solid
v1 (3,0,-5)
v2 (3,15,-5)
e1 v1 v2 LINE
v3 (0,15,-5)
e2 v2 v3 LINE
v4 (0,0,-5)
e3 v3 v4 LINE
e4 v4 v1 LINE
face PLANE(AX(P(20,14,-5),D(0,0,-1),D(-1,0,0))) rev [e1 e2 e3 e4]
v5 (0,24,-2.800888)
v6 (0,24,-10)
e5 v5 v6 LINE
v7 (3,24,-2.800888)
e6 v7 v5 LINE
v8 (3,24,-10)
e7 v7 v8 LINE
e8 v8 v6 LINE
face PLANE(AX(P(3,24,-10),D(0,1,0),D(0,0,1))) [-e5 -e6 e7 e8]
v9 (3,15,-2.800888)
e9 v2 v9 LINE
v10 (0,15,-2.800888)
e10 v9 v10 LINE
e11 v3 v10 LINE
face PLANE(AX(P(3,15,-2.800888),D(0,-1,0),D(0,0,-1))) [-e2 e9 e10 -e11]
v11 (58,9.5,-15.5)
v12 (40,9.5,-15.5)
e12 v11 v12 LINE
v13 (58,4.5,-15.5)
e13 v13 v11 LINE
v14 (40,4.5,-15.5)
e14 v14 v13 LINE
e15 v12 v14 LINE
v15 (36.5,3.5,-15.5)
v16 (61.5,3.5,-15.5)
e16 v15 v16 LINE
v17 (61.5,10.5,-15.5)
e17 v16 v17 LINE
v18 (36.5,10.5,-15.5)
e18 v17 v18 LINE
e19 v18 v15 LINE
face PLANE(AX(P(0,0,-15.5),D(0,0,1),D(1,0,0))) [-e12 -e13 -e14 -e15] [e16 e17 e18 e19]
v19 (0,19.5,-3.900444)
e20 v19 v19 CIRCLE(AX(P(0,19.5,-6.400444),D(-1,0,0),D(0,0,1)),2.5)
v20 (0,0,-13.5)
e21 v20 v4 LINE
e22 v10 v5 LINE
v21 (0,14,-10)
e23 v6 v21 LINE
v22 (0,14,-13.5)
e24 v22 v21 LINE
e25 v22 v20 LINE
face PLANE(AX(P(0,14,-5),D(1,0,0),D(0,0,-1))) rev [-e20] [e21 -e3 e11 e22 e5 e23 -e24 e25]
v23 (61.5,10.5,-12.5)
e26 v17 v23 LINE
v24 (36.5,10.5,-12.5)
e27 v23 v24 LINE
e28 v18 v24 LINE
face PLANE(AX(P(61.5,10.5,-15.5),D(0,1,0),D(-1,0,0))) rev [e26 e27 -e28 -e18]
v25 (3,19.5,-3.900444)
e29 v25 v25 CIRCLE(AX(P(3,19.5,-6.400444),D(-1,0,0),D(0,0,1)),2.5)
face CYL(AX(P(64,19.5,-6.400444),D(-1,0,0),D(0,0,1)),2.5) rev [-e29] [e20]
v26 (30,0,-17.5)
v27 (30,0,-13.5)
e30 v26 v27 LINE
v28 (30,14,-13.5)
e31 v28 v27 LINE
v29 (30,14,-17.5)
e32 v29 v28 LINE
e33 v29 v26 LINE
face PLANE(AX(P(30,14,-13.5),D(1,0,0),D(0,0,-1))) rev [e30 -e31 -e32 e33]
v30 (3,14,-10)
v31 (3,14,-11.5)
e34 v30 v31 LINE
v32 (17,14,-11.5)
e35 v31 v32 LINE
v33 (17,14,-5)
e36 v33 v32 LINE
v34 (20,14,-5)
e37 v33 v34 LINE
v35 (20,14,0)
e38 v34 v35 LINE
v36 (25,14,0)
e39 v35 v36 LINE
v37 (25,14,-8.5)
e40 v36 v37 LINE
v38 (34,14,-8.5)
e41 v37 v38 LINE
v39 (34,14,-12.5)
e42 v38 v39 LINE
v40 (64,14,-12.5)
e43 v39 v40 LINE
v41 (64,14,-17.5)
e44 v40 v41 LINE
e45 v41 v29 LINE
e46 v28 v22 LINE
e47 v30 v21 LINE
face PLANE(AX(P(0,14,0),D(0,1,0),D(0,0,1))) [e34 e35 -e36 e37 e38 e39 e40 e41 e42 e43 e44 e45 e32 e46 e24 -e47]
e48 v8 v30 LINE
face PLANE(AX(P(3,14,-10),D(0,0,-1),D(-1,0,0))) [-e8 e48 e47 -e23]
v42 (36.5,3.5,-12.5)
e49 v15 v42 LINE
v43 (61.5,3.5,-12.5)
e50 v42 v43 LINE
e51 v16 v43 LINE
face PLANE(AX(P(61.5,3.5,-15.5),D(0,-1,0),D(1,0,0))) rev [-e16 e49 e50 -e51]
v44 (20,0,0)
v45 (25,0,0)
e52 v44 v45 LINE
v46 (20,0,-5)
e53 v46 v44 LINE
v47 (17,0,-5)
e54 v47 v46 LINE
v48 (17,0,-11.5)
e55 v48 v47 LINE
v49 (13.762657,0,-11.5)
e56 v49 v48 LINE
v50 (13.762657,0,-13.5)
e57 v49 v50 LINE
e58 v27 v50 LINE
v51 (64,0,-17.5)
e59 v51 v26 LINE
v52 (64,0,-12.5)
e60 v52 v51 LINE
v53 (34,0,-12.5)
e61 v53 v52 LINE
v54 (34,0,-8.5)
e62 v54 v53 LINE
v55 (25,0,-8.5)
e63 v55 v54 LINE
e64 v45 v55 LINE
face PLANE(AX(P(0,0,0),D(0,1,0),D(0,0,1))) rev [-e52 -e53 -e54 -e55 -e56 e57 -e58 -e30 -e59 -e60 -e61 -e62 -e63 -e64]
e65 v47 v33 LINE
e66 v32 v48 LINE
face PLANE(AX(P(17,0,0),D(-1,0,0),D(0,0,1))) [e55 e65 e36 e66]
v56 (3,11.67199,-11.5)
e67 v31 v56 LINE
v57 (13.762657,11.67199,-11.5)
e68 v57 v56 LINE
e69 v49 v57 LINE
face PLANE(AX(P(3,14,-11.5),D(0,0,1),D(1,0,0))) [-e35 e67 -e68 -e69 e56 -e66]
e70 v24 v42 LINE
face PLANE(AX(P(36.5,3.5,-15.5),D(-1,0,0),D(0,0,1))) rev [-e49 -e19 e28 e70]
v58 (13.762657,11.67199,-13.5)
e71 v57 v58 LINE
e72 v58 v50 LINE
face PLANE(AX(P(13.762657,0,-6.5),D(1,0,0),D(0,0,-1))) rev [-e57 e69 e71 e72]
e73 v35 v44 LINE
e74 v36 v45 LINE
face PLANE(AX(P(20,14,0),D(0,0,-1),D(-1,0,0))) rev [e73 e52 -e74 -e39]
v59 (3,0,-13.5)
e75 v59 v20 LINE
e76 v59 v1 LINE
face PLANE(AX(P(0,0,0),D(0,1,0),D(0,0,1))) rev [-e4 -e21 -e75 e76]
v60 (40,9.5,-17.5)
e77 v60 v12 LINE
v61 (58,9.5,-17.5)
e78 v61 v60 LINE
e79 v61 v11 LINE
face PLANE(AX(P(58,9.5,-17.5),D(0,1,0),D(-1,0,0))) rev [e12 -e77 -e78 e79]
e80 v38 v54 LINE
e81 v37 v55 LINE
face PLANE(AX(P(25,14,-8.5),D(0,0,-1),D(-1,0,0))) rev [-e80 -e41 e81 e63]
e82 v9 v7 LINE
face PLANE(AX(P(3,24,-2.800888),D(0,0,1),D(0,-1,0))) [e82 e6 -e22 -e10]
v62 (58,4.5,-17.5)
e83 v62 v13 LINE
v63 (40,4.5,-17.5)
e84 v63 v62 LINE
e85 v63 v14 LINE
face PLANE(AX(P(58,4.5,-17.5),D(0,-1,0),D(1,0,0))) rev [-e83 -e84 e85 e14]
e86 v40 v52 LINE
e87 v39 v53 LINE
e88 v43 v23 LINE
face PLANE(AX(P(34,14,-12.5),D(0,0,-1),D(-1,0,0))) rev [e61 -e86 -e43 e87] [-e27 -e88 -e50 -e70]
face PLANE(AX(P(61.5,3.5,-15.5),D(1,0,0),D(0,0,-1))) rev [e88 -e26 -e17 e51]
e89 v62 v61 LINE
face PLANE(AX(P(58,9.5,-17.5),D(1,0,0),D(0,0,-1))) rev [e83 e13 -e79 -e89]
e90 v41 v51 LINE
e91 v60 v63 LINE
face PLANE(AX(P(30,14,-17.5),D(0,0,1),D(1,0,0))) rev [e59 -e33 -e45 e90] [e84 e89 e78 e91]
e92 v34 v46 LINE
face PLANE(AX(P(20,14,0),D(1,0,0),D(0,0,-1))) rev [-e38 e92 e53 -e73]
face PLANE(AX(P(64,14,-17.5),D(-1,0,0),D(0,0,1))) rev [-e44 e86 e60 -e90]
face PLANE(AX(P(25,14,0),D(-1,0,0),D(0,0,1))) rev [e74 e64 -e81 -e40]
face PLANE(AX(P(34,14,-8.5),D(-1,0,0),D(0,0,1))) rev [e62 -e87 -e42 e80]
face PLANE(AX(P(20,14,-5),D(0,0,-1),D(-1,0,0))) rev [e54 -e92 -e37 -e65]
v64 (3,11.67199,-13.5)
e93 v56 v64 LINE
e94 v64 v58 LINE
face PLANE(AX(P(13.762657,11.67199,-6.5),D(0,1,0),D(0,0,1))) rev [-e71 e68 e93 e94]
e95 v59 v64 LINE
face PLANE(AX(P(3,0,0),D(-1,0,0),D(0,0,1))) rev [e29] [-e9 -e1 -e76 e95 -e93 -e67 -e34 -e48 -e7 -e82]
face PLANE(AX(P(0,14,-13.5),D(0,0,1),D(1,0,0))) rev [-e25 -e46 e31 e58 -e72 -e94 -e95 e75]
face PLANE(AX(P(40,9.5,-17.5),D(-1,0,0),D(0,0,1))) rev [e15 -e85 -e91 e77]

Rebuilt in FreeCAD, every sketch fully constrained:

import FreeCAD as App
import Part
import Sketcher
from FreeCAD import Vector
Q = App.Units.Quantity

doc = App.newDocument("Part")
body = doc.addObject("PartDesign::Body", "Body")

# Sketch on XZ plane
sketch1 = body.newObject("Sketcher::SketchObject", "Sketch")
sketch1.AttachmentSupport = (doc.getObject("XZ_Plane"), [""])
sketch1.MapMode = "FlatFace"
sketch1.addGeometry(Part.LineSegment(Vector(25, 0, 0), Vector(25, -8.5, 0)), False)
sketch1.addGeometry(Part.LineSegment(Vector(25, -8.5, 0), Vector(34, -8.5, 0)), False)
sketch1.addGeometry(Part.LineSegment(Vector(34, -8.5, 0), Vector(34, -12.5, 0)), False)
sketch1.addGeometry(Part.LineSegment(Vector(34, -12.5, 0), Vector(64, -12.5, 0)), False)
sketch1.addGeometry(Part.LineSegment(Vector(64, -12.5, 0), Vector(64, -17.5, 0)), False)
sketch1.addGeometry(Part.LineSegment(Vector(64, -17.5, 0), Vector(30, -17.5, 0)), False)
sketch1.addGeometry(Part.LineSegment(Vector(30, -17.5, 0), Vector(30, -13.5, 0)), False)
sketch1.addGeometry(Part.LineSegment(Vector(30, -13.5, 0), Vector(0, -13.5, 0)), False)
sketch1.addGeometry(Part.LineSegment(Vector(0, -13.5, 0), Vector(0, -5, 0)), False)
sketch1.addGeometry(Part.LineSegment(Vector(0, -5, 0), Vector(20, -5, 0)), False)
sketch1.addGeometry(Part.LineSegment(Vector(20, -5, 0), Vector(20, 0, 0)), False)
sketch1.addGeometry(Part.LineSegment(Vector(20, 0, 0), Vector(25, 0, 0)), False)
sketch1.addConstraint(Sketcher.Constraint("Coincident", 0, 2, 1, 1))
sketch1.addConstraint(Sketcher.Constraint("Coincident", 1, 2, 2, 1))
sketch1.addConstraint(Sketcher.Constraint("Coincident", 2, 2, 3, 1))
sketch1.addConstraint(Sketcher.Constraint("Coincident", 3, 2, 4, 1))
sketch1.addConstraint(Sketcher.Constraint("Coincident", 4, 2, 5, 1))
sketch1.addConstraint(Sketcher.Constraint("Coincident", 5, 2, 6, 1))
sketch1.addConstraint(Sketcher.Constraint("Coincident", 6, 2, 7, 1))
sketch1.addConstraint(Sketcher.Constraint("Coincident", 7, 2, 8, 1))
sketch1.addConstraint(Sketcher.Constraint("Coincident", 8, 2, 9, 1))
sketch1.addConstraint(Sketcher.Constraint("Coincident", 9, 2, 10, 1))
sketch1.addConstraint(Sketcher.Constraint("Coincident", 10, 2, 11, 1))
sketch1.addConstraint(Sketcher.Constraint("Coincident", 11, 2, 0, 1))
sketch1.addConstraint(Sketcher.Constraint("Vertical", 0))
sketch1.addConstraint(Sketcher.Constraint("Horizontal", 1))
sketch1.addConstraint(Sketcher.Constraint("Vertical", 2))
sketch1.addConstraint(Sketcher.Constraint("Horizontal", 3))
sketch1.addConstraint(Sketcher.Constraint("Vertical", 4))
sketch1.addConstraint(Sketcher.Constraint("Horizontal", 5))
sketch1.addConstraint(Sketcher.Constraint("Vertical", 6))
sketch1.addConstraint(Sketcher.Constraint("Horizontal", 7))
sketch1.addConstraint(Sketcher.Constraint("Vertical", 8))
sketch1.addConstraint(Sketcher.Constraint("Horizontal", 9))
sketch1.addConstraint(Sketcher.Constraint("Vertical", 10))
sketch1.addConstraint(Sketcher.Constraint("Horizontal", 11))
sketch1.addConstraint(Sketcher.Constraint("PointOnObject", 7, 2, -2))
sketch1.addConstraint(Sketcher.Constraint("PointOnObject", 10, 2, -1))
sketch1.addConstraint(Sketcher.Constraint("Equal", 3, 7))
sketch1.addConstraint(Sketcher.Constraint("Equal", 11, 4))
sketch1.addConstraint(Sketcher.Constraint("Equal", 2, 6))
sketch1.addConstraint(Sketcher.Constraint("Equal", 0, 8))
sketch1.addConstraint(Sketcher.Constraint("DistanceX", 1, 1, 1, 2, Q("9 mm")))
sketch1.addConstraint(Sketcher.Constraint("DistanceX", 3, 1, 3, 2, Q("30 mm")))
sketch1.addConstraint(Sketcher.Constraint("DistanceX", 5, 2, 5, 1, Q("34 mm")))
sketch1.addConstraint(Sketcher.Constraint("DistanceX", 9, 1, 9, 2, Q("20 mm")))
sketch1.addConstraint(Sketcher.Constraint("DistanceY", 2, 2, 2, 1, Q("4 mm")))
sketch1.addConstraint(Sketcher.Constraint("DistanceY", 0, 2, 0, 1, Q("8.5 mm")))
pad1 = body.newObject("PartDesign::Pad", "Pad")
pad1.Profile = sketch1
pad1.Length = 14
pad1.Reversed = True

# Sketch on XY plane
sketch2 = body.newObject("Sketcher::SketchObject", "Sketch001")
sketch2.AttachmentSupport = (doc.getObject("XY_Plane"), [""])
sketch2.MapMode = "FlatFace"
sketch2.AttachmentOffset = App.Placement(Vector(0, 0, -12.5), App.Rotation())
sketch2.addGeometry(Part.LineSegment(Vector(36, 10, 0), Vector(36, 4, 0)), False)
sketch2.addGeometry(Part.LineSegment(Vector(36, 4, 0), Vector(62, 4, 0)), False)
sketch2.addGeometry(Part.LineSegment(Vector(62, 4, 0), Vector(62, 10, 0)), False)
sketch2.addGeometry(Part.LineSegment(Vector(62, 10, 0), Vector(36, 10, 0)), False)
sketch2.addConstraint(Sketcher.Constraint("Coincident", 0, 2, 1, 1))
sketch2.addConstraint(Sketcher.Constraint("Coincident", 1, 2, 2, 1))
sketch2.addConstraint(Sketcher.Constraint("Coincident", 2, 2, 3, 1))
sketch2.addConstraint(Sketcher.Constraint("Coincident", 3, 2, 0, 1))
sketch2.addConstraint(Sketcher.Constraint("Vertical", 0))
sketch2.addConstraint(Sketcher.Constraint("Horizontal", 1))
sketch2.addConstraint(Sketcher.Constraint("Vertical", 2))
sketch2.addConstraint(Sketcher.Constraint("Horizontal", 3))
sketch2.addConstraint(Sketcher.Constraint("DistanceX", 1, 1, 1, 2, Q("25 mm")))
sketch2.addConstraint(Sketcher.Constraint("DistanceY", 0, 2, 0, 1, Q("7 mm")))
sketch2.addConstraint(Sketcher.Constraint("DistanceX", -1, 1, 0, 2, Q("36.5 mm")))
sketch2.addConstraint(Sketcher.Constraint("DistanceY", -1, 1, 0, 2, Q("3.5 mm")))
pocket1 = body.newObject("PartDesign::Pocket", "Pocket")
pocket1.Profile = sketch2
pocket1.Length = 3

# Sketch on XY plane
sketch3 = body.newObject("Sketcher::SketchObject", "Sketch002")
sketch3.AttachmentSupport = (doc.getObject("XY_Plane"), [""])
sketch3.MapMode = "FlatFace"
sketch3.AttachmentOffset = App.Placement(Vector(0, 0, -15.5), App.Rotation())
sketch3.addGeometry(Part.LineSegment(Vector(40, 10, 0), Vector(40, 4, 0)), False)
sketch3.addGeometry(Part.LineSegment(Vector(40, 4, 0), Vector(58, 4, 0)), False)
sketch3.addGeometry(Part.LineSegment(Vector(58, 4, 0), Vector(58, 10, 0)), False)
sketch3.addGeometry(Part.LineSegment(Vector(58, 10, 0), Vector(40, 10, 0)), False)
sketch3.addConstraint(Sketcher.Constraint("Coincident", 0, 2, 1, 1))
sketch3.addConstraint(Sketcher.Constraint("Coincident", 1, 2, 2, 1))
sketch3.addConstraint(Sketcher.Constraint("Coincident", 2, 2, 3, 1))
sketch3.addConstraint(Sketcher.Constraint("Coincident", 3, 2, 0, 1))
sketch3.addConstraint(Sketcher.Constraint("Vertical", 0))
sketch3.addConstraint(Sketcher.Constraint("Horizontal", 1))
sketch3.addConstraint(Sketcher.Constraint("Vertical", 2))
sketch3.addConstraint(Sketcher.Constraint("Horizontal", 3))
sketch3.addConstraint(Sketcher.Constraint("DistanceX", 1, 1, 1, 2, Q("18 mm")))
sketch3.addConstraint(Sketcher.Constraint("DistanceY", 0, 2, 0, 1, Q("5 mm")))
sketch3.addConstraint(Sketcher.Constraint("DistanceX", -1, 1, 0, 2, Q("40 mm")))
sketch3.addConstraint(Sketcher.Constraint("DistanceY", -1, 1, 0, 2, Q("4.5 mm")))
pocket2 = body.newObject("PartDesign::Pocket", "Pocket001")
pocket2.Profile = sketch3
pocket2.Type = "ThroughAll"

# Sketch on YZ plane
sketch4 = body.newObject("Sketcher::SketchObject", "Sketch003")
sketch4.AttachmentSupport = (doc.getObject("YZ_Plane"), [""])
sketch4.MapMode = "FlatFace"
sketch4.addGeometry(Part.LineSegment(Vector(24, -10, 0), Vector(14, -10, 0)), False)
sketch4.addGeometry(Part.LineSegment(Vector(14, -10, 0), Vector(14, -5, 0)), False)
sketch4.addGeometry(Part.LineSegment(Vector(14, -5, 0), Vector(15, -5, 0)), False)
sketch4.addGeometry(Part.LineSegment(Vector(15, -5, 0), Vector(15, -2.8, 0)), False)
sketch4.addGeometry(Part.LineSegment(Vector(15, -2.8, 0), Vector(24, -2.8, 0)), False)
sketch4.addGeometry(Part.LineSegment(Vector(24, -2.8, 0), Vector(24, -10, 0)), False)
sketch4.addConstraint(Sketcher.Constraint("Coincident", 0, 2, 1, 1))
sketch4.addConstraint(Sketcher.Constraint("Coincident", 1, 2, 2, 1))
sketch4.addConstraint(Sketcher.Constraint("Coincident", 2, 2, 3, 1))
sketch4.addConstraint(Sketcher.Constraint("Coincident", 3, 2, 4, 1))
sketch4.addConstraint(Sketcher.Constraint("Coincident", 4, 2, 5, 1))
sketch4.addConstraint(Sketcher.Constraint("Coincident", 5, 2, 0, 1))
sketch4.addConstraint(Sketcher.Constraint("Horizontal", 0))
sketch4.addConstraint(Sketcher.Constraint("Vertical", 1))
sketch4.addConstraint(Sketcher.Constraint("Horizontal", 2))
sketch4.addConstraint(Sketcher.Constraint("Vertical", 3))
sketch4.addConstraint(Sketcher.Constraint("Horizontal", 4))
sketch4.addConstraint(Sketcher.Constraint("Vertical", 5))
sketch4.addConstraint(Sketcher.Constraint("DistanceX", 0, 2, 0, 1, Q("10 mm")))
sketch4.addConstraint(Sketcher.Constraint("DistanceX", 2, 1, 2, 2, Q("1 mm")))
sketch4.addConstraint(Sketcher.Constraint("DistanceY", 1, 1, 1, 2, Q("5 mm")))
sketch4.addConstraint(Sketcher.Constraint("DistanceX", -1, 1, 0, 2, Q("14 mm")))
sketch4.addConstraint(Sketcher.Constraint("DistanceY", 0, 2, -1, 1, Q("10 mm")))
sketch4.addConstraint(Sketcher.Constraint("DistanceY", 3, 1, 3, 2, Q("2.199112 mm")))
pad2 = body.newObject("PartDesign::Pad", "Pad001")
pad2.Profile = sketch4
pad2.Length = 3

# Sketch on YZ plane
sketch5 = body.newObject("Sketcher::SketchObject", "Sketch004")
sketch5.AttachmentSupport = (doc.getObject("YZ_Plane"), [""])
sketch5.MapMode = "FlatFace"
sketch5.addGeometry(Part.Circle(Vector(19.5, -6.4, 0), Vector(0, 0, 1), 2.5), False)
sketch5.addConstraint(Sketcher.Constraint("Diameter", 0, Q("5 mm")))
sketch5.addConstraint(Sketcher.Constraint("DistanceX", -1, 1, 0, 3, Q("19.5 mm")))
sketch5.addConstraint(Sketcher.Constraint("DistanceY", 0, 3, -1, 1, Q("6.400444 mm")))
pocket3 = body.newObject("PartDesign::Pocket", "Pocket002")
pocket3.Profile = sketch5
pocket3.Type = "ThroughAll"
pocket3.Reversed = True

# Sketch on YZ plane
sketch6 = body.newObject("Sketcher::SketchObject", "Sketch005")
sketch6.AttachmentSupport = (doc.getObject("YZ_Plane"), [""])
sketch6.MapMode = "FlatFace"
sketch6.AttachmentOffset = App.Placement(Vector(0, 0, 10), App.Rotation())
sketch6.addGeometry(Part.LineSegment(Vector(14, -12, 0), Vector(0, -12, 0)), False)
sketch6.addGeometry(Part.LineSegment(Vector(0, -12, 0), Vector(0, -5, 0)), False)
sketch6.addGeometry(Part.LineSegment(Vector(0, -5, 0), Vector(14, -5, 0)), False)
sketch6.addGeometry(Part.LineSegment(Vector(14, -5, 0), Vector(14, -12, 0)), False)
sketch6.addConstraint(Sketcher.Constraint("Coincident", 0, 2, 1, 1))
sketch6.addConstraint(Sketcher.Constraint("Coincident", 1, 2, 2, 1))
sketch6.addConstraint(Sketcher.Constraint("Coincident", 2, 2, 3, 1))
sketch6.addConstraint(Sketcher.Constraint("Coincident", 3, 2, 0, 1))
sketch6.addConstraint(Sketcher.Constraint("Horizontal", 0))
sketch6.addConstraint(Sketcher.Constraint("Vertical", 1))
sketch6.addConstraint(Sketcher.Constraint("Horizontal", 2))
sketch6.addConstraint(Sketcher.Constraint("Vertical", 3))
sketch6.addConstraint(Sketcher.Constraint("PointOnObject", 0, 2, -2))
sketch6.addConstraint(Sketcher.Constraint("DistanceX", 0, 2, 0, 1, Q("14 mm")))
sketch6.addConstraint(Sketcher.Constraint("DistanceY", 1, 1, 1, 2, Q("6.5 mm")))
sketch6.addConstraint(Sketcher.Constraint("DistanceY", 1, 2, -1, 1, Q("5 mm")))
pocket4 = body.newObject("PartDesign::Pocket", "Pocket003")
pocket4.Profile = sketch6
pocket4.Type = "TwoLengths"
pocket4.Length = 7
pocket4.Length2 = 7

# Sketch on XY plane
sketch7 = body.newObject("Sketcher::SketchObject", "Sketch006")
sketch7.AttachmentSupport = (doc.getObject("XY_Plane"), [""])
sketch7.MapMode = "FlatFace"
sketch7.AttachmentOffset = App.Placement(Vector(0, 0, -13.5), App.Rotation())
sketch7.addGeometry(Part.LineSegment(Vector(14, 12, 0), Vector(14, 0, 0)), False)
sketch7.addGeometry(Part.LineSegment(Vector(14, 0, 0), Vector(3, 0, 0)), False)
sketch7.addGeometry(Part.LineSegment(Vector(3, 0, 0), Vector(3, 12, 0)), False)
sketch7.addGeometry(Part.LineSegment(Vector(3, 12, 0), Vector(14, 12, 0)), False)
sketch7.addConstraint(Sketcher.Constraint("Coincident", 0, 2, 1, 1))
sketch7.addConstraint(Sketcher.Constraint("Coincident", 1, 2, 2, 1))
sketch7.addConstraint(Sketcher.Constraint("Coincident", 2, 2, 3, 1))
sketch7.addConstraint(Sketcher.Constraint("Coincident", 3, 2, 0, 1))
sketch7.addConstraint(Sketcher.Constraint("Vertical", 0))
sketch7.addConstraint(Sketcher.Constraint("Horizontal", 1))
sketch7.addConstraint(Sketcher.Constraint("Vertical", 2))
sketch7.addConstraint(Sketcher.Constraint("Horizontal", 3))
sketch7.addConstraint(Sketcher.Constraint("PointOnObject", 0, 2, -1))
sketch7.addConstraint(Sketcher.Constraint("DistanceX", -1, 1, 1, 2, Q("3 mm")))
sketch7.addConstraint(Sketcher.Constraint("DistanceY", 0, 2, 0, 1, Q("11.67199 mm")))
sketch7.addConstraint(Sketcher.Constraint("DistanceX", 1, 2, 1, 1, Q("10.762657 mm")))
pocket5 = body.newObject("PartDesign::Pocket", "Pocket004")
pocket5.Profile = sketch7
pocket5.Length = 7
pocket5.Reversed = True

doc.recompute()
